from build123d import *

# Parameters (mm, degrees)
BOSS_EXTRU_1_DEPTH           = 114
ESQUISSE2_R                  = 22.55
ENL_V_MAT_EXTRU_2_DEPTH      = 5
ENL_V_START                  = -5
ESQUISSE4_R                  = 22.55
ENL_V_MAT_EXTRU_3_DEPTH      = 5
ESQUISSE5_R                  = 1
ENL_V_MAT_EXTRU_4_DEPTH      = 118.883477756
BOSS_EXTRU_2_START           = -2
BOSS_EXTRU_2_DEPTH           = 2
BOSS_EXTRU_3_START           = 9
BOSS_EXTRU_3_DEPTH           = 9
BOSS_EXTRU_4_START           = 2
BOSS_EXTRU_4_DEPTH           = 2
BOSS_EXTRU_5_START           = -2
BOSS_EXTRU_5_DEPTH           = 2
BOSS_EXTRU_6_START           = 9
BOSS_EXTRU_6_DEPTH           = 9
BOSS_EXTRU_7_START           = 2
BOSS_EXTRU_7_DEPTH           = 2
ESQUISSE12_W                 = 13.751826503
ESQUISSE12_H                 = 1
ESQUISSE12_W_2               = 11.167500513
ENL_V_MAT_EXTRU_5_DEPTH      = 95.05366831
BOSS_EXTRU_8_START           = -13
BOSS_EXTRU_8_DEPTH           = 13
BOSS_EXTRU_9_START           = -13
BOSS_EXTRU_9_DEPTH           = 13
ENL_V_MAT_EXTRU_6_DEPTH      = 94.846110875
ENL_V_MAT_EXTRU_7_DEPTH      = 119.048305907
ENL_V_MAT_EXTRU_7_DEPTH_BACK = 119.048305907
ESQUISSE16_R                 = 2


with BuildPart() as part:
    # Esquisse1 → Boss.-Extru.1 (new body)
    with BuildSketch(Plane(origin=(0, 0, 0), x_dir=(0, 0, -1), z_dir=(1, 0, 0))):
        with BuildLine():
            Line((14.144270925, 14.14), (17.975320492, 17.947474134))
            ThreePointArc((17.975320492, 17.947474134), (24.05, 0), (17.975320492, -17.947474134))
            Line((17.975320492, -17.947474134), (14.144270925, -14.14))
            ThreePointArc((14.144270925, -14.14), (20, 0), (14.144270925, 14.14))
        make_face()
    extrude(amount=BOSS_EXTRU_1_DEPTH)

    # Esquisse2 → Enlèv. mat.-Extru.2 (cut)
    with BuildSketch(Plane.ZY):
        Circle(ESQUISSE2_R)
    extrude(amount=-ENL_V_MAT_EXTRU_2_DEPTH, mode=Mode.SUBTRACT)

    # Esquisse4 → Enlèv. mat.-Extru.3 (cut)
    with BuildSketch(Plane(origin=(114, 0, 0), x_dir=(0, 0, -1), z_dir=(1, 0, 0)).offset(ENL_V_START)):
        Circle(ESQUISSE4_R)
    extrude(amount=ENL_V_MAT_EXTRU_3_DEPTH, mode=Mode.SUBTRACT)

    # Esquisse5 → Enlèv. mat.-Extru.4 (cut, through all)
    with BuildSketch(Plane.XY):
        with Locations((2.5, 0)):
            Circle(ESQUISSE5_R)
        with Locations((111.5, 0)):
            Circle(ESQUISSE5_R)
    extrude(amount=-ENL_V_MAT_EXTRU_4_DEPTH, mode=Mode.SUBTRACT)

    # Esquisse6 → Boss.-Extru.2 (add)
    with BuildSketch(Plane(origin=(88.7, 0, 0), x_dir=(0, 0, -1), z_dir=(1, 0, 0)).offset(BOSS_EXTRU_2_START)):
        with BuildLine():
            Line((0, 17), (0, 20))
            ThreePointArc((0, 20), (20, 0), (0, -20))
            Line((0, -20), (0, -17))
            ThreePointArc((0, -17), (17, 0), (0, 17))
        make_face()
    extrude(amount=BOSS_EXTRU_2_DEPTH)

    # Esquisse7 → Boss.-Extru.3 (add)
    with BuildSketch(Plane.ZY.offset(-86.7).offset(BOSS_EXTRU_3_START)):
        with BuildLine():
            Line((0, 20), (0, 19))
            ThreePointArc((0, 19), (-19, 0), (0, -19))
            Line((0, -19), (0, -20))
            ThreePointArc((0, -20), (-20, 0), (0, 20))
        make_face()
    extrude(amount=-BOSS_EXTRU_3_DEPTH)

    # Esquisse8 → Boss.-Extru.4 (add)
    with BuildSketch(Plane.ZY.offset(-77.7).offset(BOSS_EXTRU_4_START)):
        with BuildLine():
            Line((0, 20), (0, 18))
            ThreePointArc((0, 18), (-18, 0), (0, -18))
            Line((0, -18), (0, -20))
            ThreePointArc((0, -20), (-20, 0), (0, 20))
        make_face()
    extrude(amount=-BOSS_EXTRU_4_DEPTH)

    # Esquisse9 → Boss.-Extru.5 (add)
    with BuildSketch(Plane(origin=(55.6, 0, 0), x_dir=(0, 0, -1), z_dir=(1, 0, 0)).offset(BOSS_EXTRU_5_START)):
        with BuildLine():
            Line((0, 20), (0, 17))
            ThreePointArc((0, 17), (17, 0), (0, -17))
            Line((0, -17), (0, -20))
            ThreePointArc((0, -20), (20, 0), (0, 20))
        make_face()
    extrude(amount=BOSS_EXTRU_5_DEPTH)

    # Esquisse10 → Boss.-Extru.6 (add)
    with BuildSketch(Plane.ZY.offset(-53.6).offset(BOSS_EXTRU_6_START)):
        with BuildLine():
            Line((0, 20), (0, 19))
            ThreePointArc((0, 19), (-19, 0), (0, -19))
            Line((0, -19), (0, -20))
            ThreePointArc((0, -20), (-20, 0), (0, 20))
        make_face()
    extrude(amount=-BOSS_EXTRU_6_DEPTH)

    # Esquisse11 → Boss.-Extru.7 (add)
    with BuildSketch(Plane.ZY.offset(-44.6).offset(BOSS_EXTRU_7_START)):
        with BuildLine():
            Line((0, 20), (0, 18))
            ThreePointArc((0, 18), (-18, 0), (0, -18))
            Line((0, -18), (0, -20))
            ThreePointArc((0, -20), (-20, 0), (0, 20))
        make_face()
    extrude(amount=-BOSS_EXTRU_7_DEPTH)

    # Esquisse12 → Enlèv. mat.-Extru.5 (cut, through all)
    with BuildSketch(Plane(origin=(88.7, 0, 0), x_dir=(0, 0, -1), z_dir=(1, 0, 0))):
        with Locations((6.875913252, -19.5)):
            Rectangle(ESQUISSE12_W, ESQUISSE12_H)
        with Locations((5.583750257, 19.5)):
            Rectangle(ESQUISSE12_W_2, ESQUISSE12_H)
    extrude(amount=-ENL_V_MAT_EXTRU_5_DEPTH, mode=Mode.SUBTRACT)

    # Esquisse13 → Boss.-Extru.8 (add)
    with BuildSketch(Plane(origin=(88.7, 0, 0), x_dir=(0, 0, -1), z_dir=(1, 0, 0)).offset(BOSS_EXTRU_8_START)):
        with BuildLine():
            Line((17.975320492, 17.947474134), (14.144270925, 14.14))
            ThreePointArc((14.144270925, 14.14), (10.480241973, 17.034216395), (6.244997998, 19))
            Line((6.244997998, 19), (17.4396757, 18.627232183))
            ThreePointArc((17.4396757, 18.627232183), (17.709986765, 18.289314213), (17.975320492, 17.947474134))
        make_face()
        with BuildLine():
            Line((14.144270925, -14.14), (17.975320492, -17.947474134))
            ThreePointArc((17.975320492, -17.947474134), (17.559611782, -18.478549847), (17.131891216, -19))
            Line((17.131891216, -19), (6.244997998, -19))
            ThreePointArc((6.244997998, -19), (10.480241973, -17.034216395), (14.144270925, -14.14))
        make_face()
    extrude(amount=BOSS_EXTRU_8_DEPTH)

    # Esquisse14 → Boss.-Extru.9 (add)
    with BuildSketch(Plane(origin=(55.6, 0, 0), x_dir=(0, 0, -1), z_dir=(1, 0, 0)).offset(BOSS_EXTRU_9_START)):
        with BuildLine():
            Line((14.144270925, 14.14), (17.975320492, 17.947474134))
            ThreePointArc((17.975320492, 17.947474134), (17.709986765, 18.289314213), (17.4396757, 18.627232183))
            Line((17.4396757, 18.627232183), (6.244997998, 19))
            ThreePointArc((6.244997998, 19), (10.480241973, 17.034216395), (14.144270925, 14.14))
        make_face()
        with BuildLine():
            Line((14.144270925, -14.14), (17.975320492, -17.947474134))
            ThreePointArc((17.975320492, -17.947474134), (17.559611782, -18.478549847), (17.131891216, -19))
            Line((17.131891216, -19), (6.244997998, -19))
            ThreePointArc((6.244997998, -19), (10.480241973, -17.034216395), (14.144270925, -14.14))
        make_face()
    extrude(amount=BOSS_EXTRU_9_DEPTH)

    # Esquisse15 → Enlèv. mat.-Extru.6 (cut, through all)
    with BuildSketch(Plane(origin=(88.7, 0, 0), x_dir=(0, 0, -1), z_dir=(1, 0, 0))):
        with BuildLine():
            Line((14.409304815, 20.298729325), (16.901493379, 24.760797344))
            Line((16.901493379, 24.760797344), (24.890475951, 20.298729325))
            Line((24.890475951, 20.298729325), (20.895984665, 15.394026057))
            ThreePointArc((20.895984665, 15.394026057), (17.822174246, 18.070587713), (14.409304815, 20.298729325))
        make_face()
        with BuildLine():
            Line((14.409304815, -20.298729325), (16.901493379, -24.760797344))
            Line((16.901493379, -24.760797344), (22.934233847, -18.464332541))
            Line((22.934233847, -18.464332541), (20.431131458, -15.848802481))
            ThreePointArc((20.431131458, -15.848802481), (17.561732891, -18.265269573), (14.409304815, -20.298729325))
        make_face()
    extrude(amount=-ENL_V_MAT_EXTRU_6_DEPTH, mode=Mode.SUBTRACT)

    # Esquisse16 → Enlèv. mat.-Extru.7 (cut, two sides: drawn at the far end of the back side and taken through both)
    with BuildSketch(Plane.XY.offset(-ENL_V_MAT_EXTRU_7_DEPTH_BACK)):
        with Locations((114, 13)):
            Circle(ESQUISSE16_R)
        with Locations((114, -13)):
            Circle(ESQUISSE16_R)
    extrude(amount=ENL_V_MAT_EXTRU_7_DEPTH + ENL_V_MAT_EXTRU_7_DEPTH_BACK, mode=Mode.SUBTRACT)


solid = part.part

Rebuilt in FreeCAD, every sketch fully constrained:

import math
import FreeCAD as App
import Part
import Sketcher
from FreeCAD import Vector

doc = App.newDocument("Part")
body = doc.addObject("PartDesign::Body", "Body")

# Sketch on YZ plane
sketch1 = doc.addObject("Sketcher::SketchObject", "Sketch")
body.addObject(sketch1)
sketch1.AttachmentSupport = (doc.YZ_Plane, [""])
sketch1.MapMode = "FlatFace"
sketch1.addGeometry(Part.LineSegment(Vector(18, -18, 0), Vector(14, -14, 0)), False)
sketch1.addGeometry(Part.ArcOfCircle(Part.Circle(Vector(0, 0, 0), Vector(0, 0, 1), 20), math.radians(-135), math.radians(-45)), False)
sketch1.addGeometry(Part.LineSegment(Vector(-14, -14, 0), Vector(-18, -18, 0)), False)
sketch1.addGeometry(Part.ArcOfCircle(Part.Circle(Vector(0, 5, 0), Vector(0, 0, 1), 30), math.radians(-127), math.radians(-53)), False)
sketch1.addConstraint(Sketcher.Constraint("Coincident", 0, 2, 1, 2))
sketch1.addConstraint(Sketcher.Constraint("Coincident", 1, 1, 2, 1))
sketch1.addConstraint(Sketcher.Constraint("Coincident", 2, 2, 3, 1))
sketch1.addConstraint(Sketcher.Constraint("Coincident", 3, 2, 0, 1))
sketch1.addConstraint(Sketcher.Constraint("Coincident", 1, 3, -1, 1))
sketch1.addConstraint(Sketcher.Constraint("Symmetric", 2, 2, 3, 2, -2))
sketch1.addConstraint(Sketcher.Constraint("Horizontal", 0, 2, 1, 1))
sketch1.addConstraint(Sketcher.Constraint("Radius", 1, 20.0))
sketch1.addConstraint(Sketcher.Constraint("Radius", 3, 29.55))
sketch1.addConstraint(Sketcher.Constraint("DistanceY", -1, 1, 3, 3, 5.5))
sketch1.addConstraint(Sketcher.Constraint("DistanceX", -1, 1, 0, 2, 14.14))
sketch1.addConstraint(Sketcher.Constraint("DistanceY", 2, 2, -1, 1, 17.97532))
pad1 = doc.addObject("PartDesign::Pad", "Pad")
body.addObject(pad1)
pad1.Profile = sketch1
pad1.Length = 114

# Sketch on YZ plane
sketch2 = doc.addObject("Sketcher::SketchObject", "Sketch001")
body.addObject(sketch2)
sketch2.AttachmentSupport = (doc.YZ_Plane, [""])
sketch2.MapMode = "FlatFace"
sketch2.addGeometry(Part.Circle(Vector(0, 0, 0), Vector(0, 0, 1), 23), False)
sketch2.addConstraint(Sketcher.Constraint("Coincident", 0, 3, -1, 1))
sketch2.addConstraint(Sketcher.Constraint("Diameter", 0, 45.1))
pocket1 = doc.addObject("PartDesign::Pocket", "Pocket")
body.addObject(pocket1)
pocket1.Profile = sketch2
pocket1.Length = 5
pocket1.Reversed = True

# Sketch on YZ plane
sketch3 = doc.addObject("Sketcher::SketchObject", "Sketch002")
body.addObject(sketch3)
sketch3.AttachmentSupport = (doc.YZ_Plane, [""])
sketch3.MapMode = "FlatFace"
sketch3.AttachmentOffset = App.Placement(Vector(0, 0, 109), App.Rotation())
sketch3.addGeometry(Part.Circle(Vector(0, 0, 0), Vector(0, 0, 1), 23), False)
sketch3.addConstraint(Sketcher.Constraint("Coincident", 0, 3, -1, 1))
sketch3.addConstraint(Sketcher.Constraint("Diameter", 0, 45.1))
pocket2 = doc.addObject("PartDesign::Pocket", "Pocket001")
body.addObject(pocket2)
pocket2.Profile = sketch3
pocket2.Length = 5
pocket2.Reversed = True

# Sketch on XY plane
sketch4 = doc.addObject("Sketcher::SketchObject", "Sketch003")
body.addObject(sketch4)
sketch4.AttachmentSupport = (doc.XY_Plane, [""])
sketch4.MapMode = "FlatFace"
sketch4.addGeometry(Part.Circle(Vector(2.5, 0, 0), Vector(0, 0, 1), 1), False)
sketch4.addGeometry(Part.Circle(Vector(111.5, 0, 0), Vector(0, 0, 1), 1), False)
sketch4.addConstraint(Sketcher.Constraint("Equal", 0, 1))
sketch4.addConstraint(Sketcher.Constraint("PointOnObject", 0, 3, -1))
sketch4.addConstraint(Sketcher.Constraint("PointOnObject", 1, 3, -1))
sketch4.addConstraint(Sketcher.Constraint("Diameter", 0, 2.0))
sketch4.addConstraint(Sketcher.Constraint("DistanceX", 0, 3, 1, 3, 109.0))
sketch4.addConstraint(Sketcher.Constraint("DistanceX", -1, 1, 0, 3, 2.5))
pocket3 = doc.addObject("PartDesign::Pocket", "Pocket002")
body.addObject(pocket3)
pocket3.Profile = sketch4
pocket3.Type = "ThroughAll"

# Sketch on YZ plane
sketch5 = doc.addObject("Sketcher::SketchObject", "Sketch004")
body.addObject(sketch5)
sketch5.AttachmentSupport = (doc.YZ_Plane, [""])
sketch5.MapMode = "FlatFace"
sketch5.AttachmentOffset = App.Placement(Vector(0, 0, 86.7), App.Rotation())
sketch5.addGeometry(Part.LineSegment(Vector(20, 0, 0), Vector(17, 0, 0)), False)
sketch5.addGeometry(Part.ArcOfCircle(Part.Circle(Vector(0, 0, 0), Vector(0, 0, 1), 17), math.radians(180), math.radians(360)), False)
sketch5.addGeometry(Part.LineSegment(Vector(-17, 0, 0), Vector(-20, 0, 0)), False)
sketch5.addGeometry(Part.ArcOfCircle(Part.Circle(Vector(0, 0, 0), Vector(0, 0, 1), 20), math.radians(180), math.radians(360)), False)
sketch5.addConstraint(Sketcher.Constraint("Coincident", 0, 2, 1, 2))
sketch5.addConstraint(Sketcher.Constraint("Coincident", 1, 1, 2, 1))
sketch5.addConstraint(Sketcher.Constraint("Coincident", 2, 2, 3, 1))
sketch5.addConstraint(Sketcher.Constraint("Coincident", 3, 2, 0, 1))
sketch5.addConstraint(Sketcher.Constraint("Horizontal", 0))
sketch5.addConstraint(Sketcher.Constraint("Horizontal", 2))
sketch5.addConstraint(Sketcher.Constraint("Coincident", 1, 3, -1, 1))
sketch5.addConstraint(Sketcher.Constraint("Coincident", 3, 3, -1, 1))
sketch5.addConstraint(Sketcher.Constraint("PointOnObject", 0, 2, -1))
sketch5.addConstraint(Sketcher.Constraint("PointOnObject", 1, 1, -1))
sketch5.addConstraint(Sketcher.Constraint("Radius", 1, 17.0))
sketch5.addConstraint(Sketcher.Constraint("Radius", 3, 20.0))
pad2 = doc.addObject("PartDesign::Pad", "Pad001")
body.addObject(pad2)
pad2.Profile = sketch5
pad2.Length = 2

# Sketch on YZ plane
sketch6 = doc.addObject("Sketcher::SketchObject", "Sketch005")
body.addObject(sketch6)
sketch6.AttachmentSupport = (doc.YZ_Plane, [""])
sketch6.MapMode = "FlatFace"
sketch6.AttachmentOffset = App.Placement(Vector(0, 0, 77.7), App.Rotation())
sketch6.addGeometry(Part.LineSegment(Vector(19, 0, 0), Vector(20, 0, 0)), False)
sketch6.addGeometry(Part.ArcOfCircle(Part.Circle(Vector(0, 0, 0), Vector(0, 0, 1), 20), math.radians(180), math.radians(360)), False)
sketch6.addGeometry(Part.LineSegment(Vector(-20, 0, 0), Vector(-19, 0, 0)), False)
sketch6.addGeometry(Part.ArcOfCircle(Part.Circle(Vector(0, 0, 0), Vector(0, 0, 1), 19), math.radians(180), math.radians(360)), False)
sketch6.addConstraint(Sketcher.Constraint("Coincident", 0, 2, 1, 2))
sketch6.addConstraint(Sketcher.Constraint("Coincident", 1, 1, 2, 1))
sketch6.addConstraint(Sketcher.Constraint("Coincident", 2, 2, 3, 1))
sketch6.addConstraint(Sketcher.Constraint("Coincident", 3, 2, 0, 1))
sketch6.addConstraint(Sketcher.Constraint("Horizontal", 0))
sketch6.addConstraint(Sketcher.Constraint("Horizontal", 2))
sketch6.addConstraint(Sketcher.Constraint("Coincident", 1, 3, -1, 1))
sketch6.addConstraint(Sketcher.Constraint("Coincident", 3, 3, -1, 1))
sketch6.addConstraint(Sketcher.Constraint("PointOnObject", 0, 2, -1))
sketch6.addConstraint(Sketcher.Constraint("PointOnObject", 1, 1, -1))
sketch6.addConstraint(Sketcher.Constraint("Radius", 1, 20.0))
sketch6.addConstraint(Sketcher.Constraint("Radius", 3, 19.0))
pad3 = doc.addObject("PartDesign::Pad", "Pad002")
body.addObject(pad3)
pad3.Profile = sketch6
pad3.Length = 9

# Sketch on YZ plane
sketch7 = doc.addObject("Sketcher::SketchObject", "Sketch006")
body.addObject(sketch7)
sketch7.AttachmentSupport = (doc.YZ_Plane, [""])
sketch7.MapMode = "FlatFace"
sketch7.AttachmentOffset = App.Placement(Vector(0, 0, 75.7), App.Rotation())
sketch7.addGeometry(Part.LineSegment(Vector(18, 0, 0), Vector(20, 0, 0)), False)
sketch7.addGeometry(Part.ArcOfCircle(Part.Circle(Vector(0, 0, 0), Vector(0, 0, 1), 20), math.radians(180), math.radians(360)), False)
sketch7.addGeometry(Part.LineSegment(Vector(-20, 0, 0), Vector(-18, 0, 0)), False)
sketch7.addGeometry(Part.ArcOfCircle(Part.Circle(Vector(0, 0, 0), Vector(0, 0, 1), 18), math.radians(180), math.radians(360)), False)
sketch7.addConstraint(Sketcher.Constraint("Coincident", 0, 2, 1, 2))
sketch7.addConstraint(Sketcher.Constraint("Coincident", 1, 1, 2, 1))
sketch7.addConstraint(Sketcher.Constraint("Coincident", 2, 2, 3, 1))
sketch7.addConstraint(Sketcher.Constraint("Coincident", 3, 2, 0, 1))
sketch7.addConstraint(Sketcher.Constraint("Horizontal", 0))
sketch7.addConstraint(Sketcher.Constraint("Horizontal", 2))
sketch7.addConstraint(Sketcher.Constraint("Coincident", 1, 3, -1, 1))
sketch7.addConstraint(Sketcher.Constraint("Coincident", 3, 3, -1, 1))
sketch7.addConstraint(Sketcher.Constraint("PointOnObject", 0, 2, -1))
sketch7.addConstraint(Sketcher.Constraint("PointOnObject", 1, 1, -1))
sketch7.addConstraint(Sketcher.Constraint("Radius", 1, 20.0))
sketch7.addConstraint(Sketcher.Constraint("Radius", 3, 18.0))
pad4 = doc.addObject("PartDesign::Pad", "Pad003")
body.addObject(pad4)
pad4.Profile = sketch7
pad4.Length = 2

# Sketch on YZ plane
sketch8 = doc.addObject("Sketcher::SketchObject", "Sketch007")
body.addObject(sketch8)
sketch8.AttachmentSupport = (doc.YZ_Plane, [""])
sketch8.MapMode = "FlatFace"
sketch8.AttachmentOffset = App.Placement(Vector(0, 0, 53.6), App.Rotation())
sketch8.addGeometry(Part.LineSegment(Vector(20, 0, 0), Vector(17, 0, 0)), False)
sketch8.addGeometry(Part.ArcOfCircle(Part.Circle(Vector(0, 0, 0), Vector(0, 0, 1), 17), math.radians(180), math.radians(360)), False)
sketch8.addGeometry(Part.LineSegment(Vector(-17, 0, 0), Vector(-20, 0, 0)), False)
sketch8.addGeometry(Part.ArcOfCircle(Part.Circle(Vector(0, 0, 0), Vector(0, 0, 1), 20), math.radians(180), math.radians(360)), False)
sketch8.addConstraint(Sketcher.Constraint("Coincident", 0, 2, 1, 2))
sketch8.addConstraint(Sketcher.Constraint("Coincident", 1, 1, 2, 1))
sketch8.addConstraint(Sketcher.Constraint("Coincident", 2, 2, 3, 1))
sketch8.addConstraint(Sketcher.Constraint("Coincident", 3, 2, 0, 1))
sketch8.addConstraint(Sketcher.Constraint("Horizontal", 0))
sketch8.addConstraint(Sketcher.Constraint("Horizontal", 2))
sketch8.addConstraint(Sketcher.Constraint("Coincident", 1, 3, -1, 1))
sketch8.addConstraint(Sketcher.Constraint("Coincident", 3, 3, -1, 1))
sketch8.addConstraint(Sketcher.Constraint("PointOnObject", 0, 2, -1))
sketch8.addConstraint(Sketcher.Constraint("PointOnObject", 1, 1, -1))
sketch8.addConstraint(Sketcher.Constraint("Radius", 1, 17.0))
sketch8.addConstraint(Sketcher.Constraint("Radius", 3, 20.0))
pad5 = doc.addObject("PartDesign::Pad", "Pad004")
body.addObject(pad5)
pad5.Profile = sketch8
pad5.Length = 2

# Sketch on YZ plane
sketch9 = doc.addObject("Sketcher::SketchObject", "Sketch008")
body.addObject(sketch9)
sketch9.AttachmentSupport = (doc.YZ_Plane, [""])
sketch9.MapMode = "FlatFace"
sketch9.AttachmentOffset = App.Placement(Vector(0, 0, 44.6), App.Rotation())
sketch9.addGeometry(Part.LineSegment(Vector(19, 0, 0), Vector(20, 0, 0)), False)
sketch9.addGeometry(Part.ArcOfCircle(Part.Circle(Vector(0, 0, 0), Vector(0, 0, 1), 20), math.radians(180), math.radians(360)), False)
sketch9.addGeometry(Part.LineSegment(Vector(-20, 0, 0), Vector(-19, 0, 0)), False)
sketch9.addGeometry(Part.ArcOfCircle(Part.Circle(Vector(0, 0, 0), Vector(0, 0, 1), 19), math.radians(180), math.radians(360)), False)
sketch9.addConstraint(Sketcher.Constraint("Coincident", 0, 2, 1, 2))
sketch9.addConstraint(Sketcher.Constraint("Coincident", 1, 1, 2, 1))
sketch9.addConstraint(Sketcher.Constraint("Coincident", 2, 2, 3, 1))
sketch9.addConstraint(Sketcher.Constraint("Coincident", 3, 2, 0, 1))
sketch9.addConstraint(Sketcher.Constraint("Horizontal", 0))
sketch9.addConstraint(Sketcher.Constraint("Horizontal", 2))
sketch9.addConstraint(Sketcher.Constraint("Coincident", 1, 3, -1, 1))
sketch9.addConstraint(Sketcher.Constraint("Coincident", 3, 3, -1, 1))
sketch9.addConstraint(Sketcher.Constraint("PointOnObject", 0, 2, -1))
sketch9.addConstraint(Sketcher.Constraint("PointOnObject", 1, 1, -1))
sketch9.addConstraint(Sketcher.Constraint("Radius", 1, 20.0))
sketch9.addConstraint(Sketcher.Constraint("Radius", 3, 19.0))
pad6 = doc.addObject("PartDesign::Pad", "Pad005")
body.addObject(pad6)
pad6.Profile = sketch9
pad6.Length = 9

# Sketch on YZ plane
sketch10 = doc.addObject("Sketcher::SketchObject", "Sketch009")
body.addObject(sketch10)
sketch10.AttachmentSupport = (doc.YZ_Plane, [""])
sketch10.MapMode = "FlatFace"
sketch10.AttachmentOffset = App.Placement(Vector(0, 0, 42.6), App.Rotation())
sketch10.addGeometry(Part.LineSegment(Vector(18, 0, 0), Vector(20, 0, 0)), False)
sketch10.addGeometry(Part.ArcOfCircle(Part.Circle(Vector(0, 0, 0), Vector(0, 0, 1), 20), math.radians(180), math.radians(360)), False)
sketch10.addGeometry(Part.LineSegment(Vector(-20, 0, 0), Vector(-18, 0, 0)), False)
sketch10.addGeometry(Part.ArcOfCircle(Part.Circle(Vector(0, 0, 0), Vector(0, 0, 1), 18), math.radians(180), math.radians(360)), False)
sketch10.addConstraint(Sketcher.Constraint("Coincident", 0, 2, 1, 2))
sketch10.addConstraint(Sketcher.Constraint("Coincident", 1, 1, 2, 1))
sketch10.addConstraint(Sketcher.Constraint("Coincident", 2, 2, 3, 1))
sketch10.addConstraint(Sketcher.Constraint("Coincident", 3, 2, 0, 1))
sketch10.addConstraint(Sketcher.Constraint("Horizontal", 0))
sketch10.addConstraint(Sketcher.Constraint("Horizontal", 2))
sketch10.addConstraint(Sketcher.Constraint("Coincident", 1, 3, -1, 1))
sketch10.addConstraint(Sketcher.Constraint("Coincident", 3, 3, -1, 1))
sketch10.addConstraint(Sketcher.Constraint("PointOnObject", 0, 2, -1))
sketch10.addConstraint(Sketcher.Constraint("PointOnObject", 1, 1, -1))
sketch10.addConstraint(Sketcher.Constraint("Radius", 1, 20.0))
sketch10.addConstraint(Sketcher.Constraint("Radius", 3, 18.0))
pad7 = doc.addObject("PartDesign::Pad", "Pad006")
body.addObject(pad7)
pad7.Profile = sketch10
pad7.Length = 2

# Sketch on YZ plane
sketch11 = doc.addObject("Sketcher::SketchObject", "Sketch010")
body.addObject(sketch11)
sketch11.AttachmentSupport = (doc.YZ_Plane, [""])
sketch11.MapMode = "FlatFace"
sketch11.AttachmentOffset = App.Placement(Vector(0, 0, 88.7), App.Rotation())
sketch11.addGeometry(Part.LineSegment(Vector(-19, 0, 0), Vector(-20, 0, 0)), False)
sketch11.addGeometry(Part.LineSegment(Vector(-20, 0, 0), Vector(-20, -13.8, 0)), False)
sketch11.addGeometry(Part.LineSegment(Vector(-20, -13.8, 0), Vector(-19, -13.8, 0)), False)
sketch11.addGeometry(Part.LineSegment(Vector(-19, -13.8, 0), Vector(-19, 0, 0)), False)
sketch11.addGeometry(Part.LineSegment(Vector(20, 0, 0), Vector(19, 0, 0)), False)
sketch11.addGeometry(Part.LineSegment(Vector(19, 0, 0), Vector(19, -11.2, 0)), False)
sketch11.addGeometry(Part.LineSegment(Vector(19, -11.2, 0), Vector(20, -11.2, 0)), False)
sketch11.addGeometry(Part.LineSegment(Vector(20, -11.2, 0), Vector(20, 0, 0)), False)
sketch11.addConstraint(Sketcher.Constraint("Coincident", 0, 2, 1, 1))
sketch11.addConstraint(Sketcher.Constraint("Coincident", 1, 2, 2, 1))
sketch11.addConstraint(Sketcher.Constraint("Coincident", 2, 2, 3, 1))
sketch11.addConstraint(Sketcher.Constraint("Coincident", 3, 2, 0, 1))
sketch11.addConstraint(Sketcher.Constraint("Coincident", 4, 2, 5, 1))
sketch11.addConstraint(Sketcher.Constraint("Coincident", 5, 2, 6, 1))
sketch11.addConstraint(Sketcher.Constraint("Coincident", 6, 2, 7, 1))
sketch11.addConstraint(Sketcher.Constraint("Coincident", 7, 2, 4, 1))
sketch11.addConstraint(Sketcher.Constraint("Horizontal", 0))
sketch11.addConstraint(Sketcher.Constraint("Vertical", 1))
sketch11.addConstraint(Sketcher.Constraint("Horizontal", 2))
sketch11.addConstraint(Sketcher.Constraint("Vertical", 3))
sketch11.addConstraint(Sketcher.Constraint("Horizontal", 4))
sketch11.addConstraint(Sketcher.Constraint("Vertical", 5))
sketch11.addConstraint(Sketcher.Constraint("Horizontal", 6))
sketch11.addConstraint(Sketcher.Constraint("Vertical", 7))
sketch11.addConstraint(Sketcher.Constraint("Symmetric", 3, 2, 4, 2, -1, 1))
sketch11.addConstraint(Sketcher.Constraint("Symmetric", 0, 2, 7, 2, -2))
sketch11.addConstraint(Sketcher.Constraint("DistanceX", 0, 2, 0, 1, 1.0))
sketch11.addConstraint(Sketcher.Constraint("DistanceX", 0, 2, -1, 1, 20.0))
sketch11.addConstraint(Sketcher.Constraint("DistanceY", 5, 2, 5, 1, 11.167501))
sketch11.addConstraint(Sketcher.Constraint("DistanceY", 1, 2, 1, 1, 13.751827))
pocket4 = doc.addObject("PartDesign::Pocket", "Pocket003")
body.addObject(pocket4)
pocket4.Profile = sketch11
pocket4.Type = "ThroughAll"

# Sketch on YZ plane
sketch12 = doc.addObject("Sketcher::SketchObject", "Sketch011")
body.addObject(sketch12)
sketch12.AttachmentSupport = (doc.YZ_Plane, [""])
sketch12.MapMode = "FlatFace"
sketch12.AttachmentOffset = App.Placement(Vector(0, 0, 75.7), App.Rotation())
sketch12.addGeometry(Part.LineSegment(Vector(14.1, -14.1, 0), Vector(17.9, -18, 0)), False)
sketch12.addGeometry(Part.ArcOfCircle(Part.Circle(Vector(0, 5.5, 0), Vector(0, 0, 1), 29.5), math.radians(-52.6), math.radians(-50.92)), False)
sketch12.addGeometry(Part.LineSegment(Vector(18.6, -17.4, 0), Vector(19, -6.2, 0)), False)
sketch12.addGeometry(Part.ArcOfCircle(Part.Circle(Vector(0, 0, 0), Vector(0, 0, 1), 20), math.radians(-45), math.radians(-18)), False)
sketch12.addGeometry(Part.LineSegment(Vector(-17.9, -18, 0), Vector(-14.1, -14.1, 0)), False)
sketch12.addGeometry(Part.ArcOfCircle(Part.Circle(Vector(0, 0, 0), Vector(0, 0, 1), 20), math.radians(-162), math.radians(-135)), False)
sketch12.addGeometry(Part.LineSegment(Vector(-19, -6.2, 0), Vector(-19, -17.1, 0)), False)
sketch12.addGeometry(Part.ArcOfCircle(Part.Circle(Vector(0, 5.5, 0), Vector(0, 0, 1), 29.6), math.radians(-130.01), math.radians(-127.4)), False)
sketch12.addConstraint(Sketcher.Constraint("Coincident", 0, 2, 1, 1))
sketch12.addConstraint(Sketcher.Constraint("Coincident", 1, 2, 2, 1))
sketch12.addConstraint(Sketcher.Constraint("Coincident", 2, 2, 3, 2))
sketch12.addConstraint(Sketcher.Constraint("Coincident", 3, 1, 0, 1))
sketch12.addConstraint(Sketcher.Constraint("Coincident", 4, 2, 5, 2))
sketch12.addConstraint(Sketcher.Constraint("Coincident", 5, 1, 6, 1))
sketch12.addConstraint(Sketcher.Constraint("Coincident", 6, 2, 7, 1))
sketch12.addConstraint(Sketcher.Constraint("Coincident", 7, 2, 4, 1))
sketch12.addConstraint(Sketcher.Constraint("Vertical", 6))
sketch12.addConstraint(Sketcher.Constraint("Coincident", 3, 3, -1, 1))
sketch12.addConstraint(Sketcher.Constraint("Coincident", 5, 3, -1, 1))
sketch12.addConstraint(Sketcher.Constraint("Coincident", 7, 3, 1, 3))
sketch12.addConstraint(Sketcher.Constraint("Equal", 3, 5))
sketch12.addConstraint(Sketcher.Constraint("Symmetric", 0, 2, 7, 2, -2))
sketch12.addConstraint(Sketcher.Constraint("PointOnObject", 1, 3, -2))
sketch12.addConstraint(Sketcher.Constraint("Horizontal", 3, 1, 4, 2))
sketch12.addConstraint(Sketcher.Constraint("Horizontal", 2, 2, 5, 1))
sketch12.addConstraint(Sketcher.Constraint("Radius", 3, 20.0))
sketch12.addConstraint(Sketcher.Constraint("Radius", 1, 29.549999))
sketch12.addConstraint(Sketcher.Constraint("DistanceX", -1, 1, 2, 2, 19.0))
sketch12.addConstraint(Sketcher.Constraint("DistanceY", -1, 1, 1, 3, 5.499999))
sketch12.addConstraint(Sketcher.Constraint("DistanceX", -1, 1, 3, 1, 14.14))
sketch12.addConstraint(Sketcher.Constraint("DistanceY", 0, 2, -1, 1, 17.97532))
sketch12.addConstraint(Sketcher.Constraint("DistanceX", 0, 2, 1, 2, 0.679758))
pad8 = doc.addObject("PartDesign::Pad", "Pad007")
body.addObject(pad8)
pad8.Profile = sketch12
pad8.Length = 13

# Sketch on YZ plane
sketch13 = doc.addObject("Sketcher::SketchObject", "Sketch012")
body.addObject(sketch13)
sketch13.AttachmentSupport = (doc.YZ_Plane, [""])
sketch13.MapMode = "FlatFace"
sketch13.AttachmentOffset = App.Placement(Vector(0, 0, 42.6), App.Rotation())
sketch13.addGeometry(Part.LineSegment(Vector(14.1, -14.1, 0), Vector(17.9, -18, 0)), False)
sketch13.addGeometry(Part.ArcOfCircle(Part.Circle(Vector(0, 5.5, 0), Vector(0, 0, 1), 29.5), math.radians(-52.6), math.radians(-50.92)), False)
sketch13.addGeometry(Part.LineSegment(Vector(18.6, -17.4, 0), Vector(19, -6.2, 0)), False)
sketch13.addGeometry(Part.ArcOfCircle(Part.Circle(Vector(0, 0, 0), Vector(0, 0, 1), 20), math.radians(-45), math.radians(-18)), False)
sketch13.addGeometry(Part.LineSegment(Vector(-17.9, -18, 0), Vector(-14.1, -14.1, 0)), False)
sketch13.addGeometry(Part.ArcOfCircle(Part.Circle(Vector(0, 0, 0), Vector(0, 0, 1), 20), math.radians(-162), math.radians(-135)), False)
sketch13.addGeometry(Part.LineSegment(Vector(-19, -6.2, 0), Vector(-19, -17.1, 0)), False)
sketch13.addGeometry(Part.ArcOfCircle(Part.Circle(Vector(0, 5.5, 0), Vector(0, 0, 1), 29.6), math.radians(-130.01), math.radians(-127.4)), False)
sketch13.addConstraint(Sketcher.Constraint("Coincident", 0, 2, 1, 1))
sketch13.addConstraint(Sketcher.Constraint("Coincident", 1, 2, 2, 1))
sketch13.addConstraint(Sketcher.Constraint("Coincident", 2, 2, 3, 2))
sketch13.addConstraint(Sketcher.Constraint("Coincident", 3, 1, 0, 1))
sketch13.addConstraint(Sketcher.Constraint("Coincident", 4, 2, 5, 2))
sketch13.addConstraint(Sketcher.Constraint("Coincident", 5, 1, 6, 1))
sketch13.addConstraint(Sketcher.Constraint("Coincident", 6, 2, 7, 1))
sketch13.addConstraint(Sketcher.Constraint("Coincident", 7, 2, 4, 1))
sketch13.addConstraint(Sketcher.Constraint("Vertical", 6))
sketch13.addConstraint(Sketcher.Constraint("Coincident", 3, 3, -1, 1))
sketch13.addConstraint(Sketcher.Constraint("Coincident", 5, 3, -1, 1))
sketch13.addConstraint(Sketcher.Constraint("Coincident", 7, 3, 1, 3))
sketch13.addConstraint(Sketcher.Constraint("Equal", 3, 5))
sketch13.addConstraint(Sketcher.Constraint("Symmetric", 0, 2, 7, 2, -2))
sketch13.addConstraint(Sketcher.Constraint("PointOnObject", 1, 3, -2))
sketch13.addConstraint(Sketcher.Constraint("Horizontal", 3, 1, 4, 2))
sketch13.addConstraint(Sketcher.Constraint("Horizontal", 2, 2, 5, 1))
sketch13.addConstraint(Sketcher.Constraint("Radius", 3, 20.0))
sketch13.addConstraint(Sketcher.Constraint("Radius", 1, 29.549999))
sketch13.addConstraint(Sketcher.Constraint("DistanceX", -1, 1, 2, 2, 19.0))
sketch13.addConstraint(Sketcher.Constraint("DistanceY", -1, 1, 1, 3, 5.499999))
sketch13.addConstraint(Sketcher.Constraint("DistanceX", -1, 1, 3, 1, 14.14))
sketch13.addConstraint(Sketcher.Constraint("DistanceY", 0, 2, -1, 1, 17.97532))
sketch13.addConstraint(Sketcher.Constraint("DistanceX", 0, 2, 1, 2, 0.679758))
pad9 = doc.addObject("PartDesign::Pad", "Pad008")
body.addObject(pad9)
pad9.Profile = sketch13
pad9.Length = 13

# Sketch on YZ plane
sketch14 = doc.addObject("Sketcher::SketchObject", "Sketch013")
body.addObject(sketch14)
sketch14.AttachmentSupport = (doc.YZ_Plane, [""])
sketch14.MapMode = "FlatFace"
sketch14.AttachmentOffset = App.Placement(Vector(0, 0, 88.7), App.Rotation())
sketch14.addGeometry(Part.LineSegment(Vector(24.8, -16.9, 0), Vector(20.3, -14.4, 0)), False)
sketch14.addGeometry(Part.ArcOfCircle(Part.Circle(Vector(-5.5, 0, 0), Vector(0, 0, 1), 29.6), math.radians(-45), math.radians(-29.18)), False)
sketch14.addGeometry(Part.LineSegment(Vector(15.4, -20.9, 0), Vector(20.3, -24.9, 0)), False)
sketch14.addGeometry(Part.LineSegment(Vector(20.3, -24.9, 0), Vector(24.8, -16.9, 0)), False)
sketch14.addGeometry(Part.LineSegment(Vector(-20.3, -14.4, 0), Vector(-24.8, -16.9, 0)), False)
sketch14.addGeometry(Part.LineSegment(Vector(-24.8, -16.9, 0), Vector(-18.5, -22.9, 0)), False)
sketch14.addGeometry(Part.LineSegment(Vector(-18.5, -22.9, 0), Vector(-15.8, -20.4, 0)), False)
sketch14.addGeometry(Part.ArcOfCircle(Part.Circle(Vector(5.5, 0, 0), Vector(0, 0, 1), 29.6), math.radians(-150.82), math.radians(-136.26)), False)
sketch14.addConstraint(Sketcher.Constraint("Coincident", 0, 2, 1, 2))
sketch14.addConstraint(Sketcher.Constraint("Coincident", 1, 1, 2, 1))
sketch14.addConstraint(Sketcher.Constraint("Coincident", 2, 2, 3, 1))
sketch14.addConstraint(Sketcher.Constraint("Coincident", 3, 2, 0, 1))
sketch14.addConstraint(Sketcher.Constraint("Coincident", 4, 2, 5, 1))
sketch14.addConstraint(Sketcher.Constraint("Coincident", 5, 2, 6, 1))
sketch14.addConstraint(Sketcher.Constraint("Coincident", 6, 2, 7, 2))
sketch14.addConstraint(Sketcher.Constraint("Coincident", 7, 1, 4, 1))
sketch14.addConstraint(Sketcher.Constraint("Equal", 1, 7))
sketch14.addConstraint(Sketcher.Constraint("Symmetric", 1, 3, 7, 3, -1, 1))
sketch14.addConstraint(Sketcher.Constraint("Symmetric", 3, 2, 4, 2, -2))
sketch14.addConstraint(Sketcher.Constraint("Symmetric", 0, 2, 7, 1, -2))
sketch14.addConstraint(Sketcher.Constraint("Perpendicular", 0, 3))
sketch14.addConstraint(Sketcher.Constraint("Vertical", 0, 2, 2, 2))
sketch14.addConstraint(Sketcher.Constraint("Radius", 1, 29.55))
sketch14.addConstraint(Sketcher.Constraint("DistanceX", 1, 3, 7, 3, 11.0))
sketch14.addConstraint(Sketcher.Constraint("Distance", 2, 6.32551))
sketch14.addConstraint(Sketcher.Constraint("Distance", 5, 8.720059))
sketch14.addConstraint(Sketcher.Constraint("DistanceX", -1, 1, 0, 2, 20.298729))
sketch14.addConstraint(Sketcher.Constraint("DistanceY", 6, 2, -1, 1, 20.431131))
sketch14.addConstraint(Sketcher.Constraint("DistanceY", 1, 1, 0, 2, 6.48668))
sketch14.addConstraint(Sketcher.Constraint("DistanceX", 0, 2, 3, 2, 4.462068))
sketch14.addConstraint(Sketcher.Constraint("DistanceY", 5, 2, 4, 2, 6.03274))
pocket5 = doc.addObject("PartDesign::Pocket", "Pocket004")
body.addObject(pocket5)
pocket5.Profile = sketch14
pocket5.Type = "ThroughAll"

# Sketch on XY plane
sketch15 = doc.addObject("Sketcher::SketchObject", "Sketch014")
body.addObject(sketch15)
sketch15.AttachmentSupport = (doc.XY_Plane, [""])
sketch15.MapMode = "FlatFace"
sketch15.addGeometry(Part.Circle(Vector(114, 13, 0), Vector(0, 0, 1), 2), False)
sketch15.addGeometry(Part.Circle(Vector(114, -13, 0), Vector(0, 0, 1), 2), False)
sketch15.addConstraint(Sketcher.Constraint("Equal", 0, 1))
sketch15.addConstraint(Sketcher.Constraint("Symmetric", 0, 3, 1, 3, -1))
sketch15.addConstraint(Sketcher.Constraint("Diameter", 0, 4.0))
sketch15.addConstraint(Sketcher.Constraint("DistanceX", -1, 1, 0, 3, 114.0))
sketch15.addConstraint(Sketcher.Constraint("DistanceY", -1, 1, 0, 3, 13.0))
pocket6 = doc.addObject("PartDesign::Pocket", "Pocket005")
body.addObject(pocket6)
pocket6.Profile = sketch15
pocket6.Type = "ThroughAll"
pocket6.Midplane = True

doc.recompute()
